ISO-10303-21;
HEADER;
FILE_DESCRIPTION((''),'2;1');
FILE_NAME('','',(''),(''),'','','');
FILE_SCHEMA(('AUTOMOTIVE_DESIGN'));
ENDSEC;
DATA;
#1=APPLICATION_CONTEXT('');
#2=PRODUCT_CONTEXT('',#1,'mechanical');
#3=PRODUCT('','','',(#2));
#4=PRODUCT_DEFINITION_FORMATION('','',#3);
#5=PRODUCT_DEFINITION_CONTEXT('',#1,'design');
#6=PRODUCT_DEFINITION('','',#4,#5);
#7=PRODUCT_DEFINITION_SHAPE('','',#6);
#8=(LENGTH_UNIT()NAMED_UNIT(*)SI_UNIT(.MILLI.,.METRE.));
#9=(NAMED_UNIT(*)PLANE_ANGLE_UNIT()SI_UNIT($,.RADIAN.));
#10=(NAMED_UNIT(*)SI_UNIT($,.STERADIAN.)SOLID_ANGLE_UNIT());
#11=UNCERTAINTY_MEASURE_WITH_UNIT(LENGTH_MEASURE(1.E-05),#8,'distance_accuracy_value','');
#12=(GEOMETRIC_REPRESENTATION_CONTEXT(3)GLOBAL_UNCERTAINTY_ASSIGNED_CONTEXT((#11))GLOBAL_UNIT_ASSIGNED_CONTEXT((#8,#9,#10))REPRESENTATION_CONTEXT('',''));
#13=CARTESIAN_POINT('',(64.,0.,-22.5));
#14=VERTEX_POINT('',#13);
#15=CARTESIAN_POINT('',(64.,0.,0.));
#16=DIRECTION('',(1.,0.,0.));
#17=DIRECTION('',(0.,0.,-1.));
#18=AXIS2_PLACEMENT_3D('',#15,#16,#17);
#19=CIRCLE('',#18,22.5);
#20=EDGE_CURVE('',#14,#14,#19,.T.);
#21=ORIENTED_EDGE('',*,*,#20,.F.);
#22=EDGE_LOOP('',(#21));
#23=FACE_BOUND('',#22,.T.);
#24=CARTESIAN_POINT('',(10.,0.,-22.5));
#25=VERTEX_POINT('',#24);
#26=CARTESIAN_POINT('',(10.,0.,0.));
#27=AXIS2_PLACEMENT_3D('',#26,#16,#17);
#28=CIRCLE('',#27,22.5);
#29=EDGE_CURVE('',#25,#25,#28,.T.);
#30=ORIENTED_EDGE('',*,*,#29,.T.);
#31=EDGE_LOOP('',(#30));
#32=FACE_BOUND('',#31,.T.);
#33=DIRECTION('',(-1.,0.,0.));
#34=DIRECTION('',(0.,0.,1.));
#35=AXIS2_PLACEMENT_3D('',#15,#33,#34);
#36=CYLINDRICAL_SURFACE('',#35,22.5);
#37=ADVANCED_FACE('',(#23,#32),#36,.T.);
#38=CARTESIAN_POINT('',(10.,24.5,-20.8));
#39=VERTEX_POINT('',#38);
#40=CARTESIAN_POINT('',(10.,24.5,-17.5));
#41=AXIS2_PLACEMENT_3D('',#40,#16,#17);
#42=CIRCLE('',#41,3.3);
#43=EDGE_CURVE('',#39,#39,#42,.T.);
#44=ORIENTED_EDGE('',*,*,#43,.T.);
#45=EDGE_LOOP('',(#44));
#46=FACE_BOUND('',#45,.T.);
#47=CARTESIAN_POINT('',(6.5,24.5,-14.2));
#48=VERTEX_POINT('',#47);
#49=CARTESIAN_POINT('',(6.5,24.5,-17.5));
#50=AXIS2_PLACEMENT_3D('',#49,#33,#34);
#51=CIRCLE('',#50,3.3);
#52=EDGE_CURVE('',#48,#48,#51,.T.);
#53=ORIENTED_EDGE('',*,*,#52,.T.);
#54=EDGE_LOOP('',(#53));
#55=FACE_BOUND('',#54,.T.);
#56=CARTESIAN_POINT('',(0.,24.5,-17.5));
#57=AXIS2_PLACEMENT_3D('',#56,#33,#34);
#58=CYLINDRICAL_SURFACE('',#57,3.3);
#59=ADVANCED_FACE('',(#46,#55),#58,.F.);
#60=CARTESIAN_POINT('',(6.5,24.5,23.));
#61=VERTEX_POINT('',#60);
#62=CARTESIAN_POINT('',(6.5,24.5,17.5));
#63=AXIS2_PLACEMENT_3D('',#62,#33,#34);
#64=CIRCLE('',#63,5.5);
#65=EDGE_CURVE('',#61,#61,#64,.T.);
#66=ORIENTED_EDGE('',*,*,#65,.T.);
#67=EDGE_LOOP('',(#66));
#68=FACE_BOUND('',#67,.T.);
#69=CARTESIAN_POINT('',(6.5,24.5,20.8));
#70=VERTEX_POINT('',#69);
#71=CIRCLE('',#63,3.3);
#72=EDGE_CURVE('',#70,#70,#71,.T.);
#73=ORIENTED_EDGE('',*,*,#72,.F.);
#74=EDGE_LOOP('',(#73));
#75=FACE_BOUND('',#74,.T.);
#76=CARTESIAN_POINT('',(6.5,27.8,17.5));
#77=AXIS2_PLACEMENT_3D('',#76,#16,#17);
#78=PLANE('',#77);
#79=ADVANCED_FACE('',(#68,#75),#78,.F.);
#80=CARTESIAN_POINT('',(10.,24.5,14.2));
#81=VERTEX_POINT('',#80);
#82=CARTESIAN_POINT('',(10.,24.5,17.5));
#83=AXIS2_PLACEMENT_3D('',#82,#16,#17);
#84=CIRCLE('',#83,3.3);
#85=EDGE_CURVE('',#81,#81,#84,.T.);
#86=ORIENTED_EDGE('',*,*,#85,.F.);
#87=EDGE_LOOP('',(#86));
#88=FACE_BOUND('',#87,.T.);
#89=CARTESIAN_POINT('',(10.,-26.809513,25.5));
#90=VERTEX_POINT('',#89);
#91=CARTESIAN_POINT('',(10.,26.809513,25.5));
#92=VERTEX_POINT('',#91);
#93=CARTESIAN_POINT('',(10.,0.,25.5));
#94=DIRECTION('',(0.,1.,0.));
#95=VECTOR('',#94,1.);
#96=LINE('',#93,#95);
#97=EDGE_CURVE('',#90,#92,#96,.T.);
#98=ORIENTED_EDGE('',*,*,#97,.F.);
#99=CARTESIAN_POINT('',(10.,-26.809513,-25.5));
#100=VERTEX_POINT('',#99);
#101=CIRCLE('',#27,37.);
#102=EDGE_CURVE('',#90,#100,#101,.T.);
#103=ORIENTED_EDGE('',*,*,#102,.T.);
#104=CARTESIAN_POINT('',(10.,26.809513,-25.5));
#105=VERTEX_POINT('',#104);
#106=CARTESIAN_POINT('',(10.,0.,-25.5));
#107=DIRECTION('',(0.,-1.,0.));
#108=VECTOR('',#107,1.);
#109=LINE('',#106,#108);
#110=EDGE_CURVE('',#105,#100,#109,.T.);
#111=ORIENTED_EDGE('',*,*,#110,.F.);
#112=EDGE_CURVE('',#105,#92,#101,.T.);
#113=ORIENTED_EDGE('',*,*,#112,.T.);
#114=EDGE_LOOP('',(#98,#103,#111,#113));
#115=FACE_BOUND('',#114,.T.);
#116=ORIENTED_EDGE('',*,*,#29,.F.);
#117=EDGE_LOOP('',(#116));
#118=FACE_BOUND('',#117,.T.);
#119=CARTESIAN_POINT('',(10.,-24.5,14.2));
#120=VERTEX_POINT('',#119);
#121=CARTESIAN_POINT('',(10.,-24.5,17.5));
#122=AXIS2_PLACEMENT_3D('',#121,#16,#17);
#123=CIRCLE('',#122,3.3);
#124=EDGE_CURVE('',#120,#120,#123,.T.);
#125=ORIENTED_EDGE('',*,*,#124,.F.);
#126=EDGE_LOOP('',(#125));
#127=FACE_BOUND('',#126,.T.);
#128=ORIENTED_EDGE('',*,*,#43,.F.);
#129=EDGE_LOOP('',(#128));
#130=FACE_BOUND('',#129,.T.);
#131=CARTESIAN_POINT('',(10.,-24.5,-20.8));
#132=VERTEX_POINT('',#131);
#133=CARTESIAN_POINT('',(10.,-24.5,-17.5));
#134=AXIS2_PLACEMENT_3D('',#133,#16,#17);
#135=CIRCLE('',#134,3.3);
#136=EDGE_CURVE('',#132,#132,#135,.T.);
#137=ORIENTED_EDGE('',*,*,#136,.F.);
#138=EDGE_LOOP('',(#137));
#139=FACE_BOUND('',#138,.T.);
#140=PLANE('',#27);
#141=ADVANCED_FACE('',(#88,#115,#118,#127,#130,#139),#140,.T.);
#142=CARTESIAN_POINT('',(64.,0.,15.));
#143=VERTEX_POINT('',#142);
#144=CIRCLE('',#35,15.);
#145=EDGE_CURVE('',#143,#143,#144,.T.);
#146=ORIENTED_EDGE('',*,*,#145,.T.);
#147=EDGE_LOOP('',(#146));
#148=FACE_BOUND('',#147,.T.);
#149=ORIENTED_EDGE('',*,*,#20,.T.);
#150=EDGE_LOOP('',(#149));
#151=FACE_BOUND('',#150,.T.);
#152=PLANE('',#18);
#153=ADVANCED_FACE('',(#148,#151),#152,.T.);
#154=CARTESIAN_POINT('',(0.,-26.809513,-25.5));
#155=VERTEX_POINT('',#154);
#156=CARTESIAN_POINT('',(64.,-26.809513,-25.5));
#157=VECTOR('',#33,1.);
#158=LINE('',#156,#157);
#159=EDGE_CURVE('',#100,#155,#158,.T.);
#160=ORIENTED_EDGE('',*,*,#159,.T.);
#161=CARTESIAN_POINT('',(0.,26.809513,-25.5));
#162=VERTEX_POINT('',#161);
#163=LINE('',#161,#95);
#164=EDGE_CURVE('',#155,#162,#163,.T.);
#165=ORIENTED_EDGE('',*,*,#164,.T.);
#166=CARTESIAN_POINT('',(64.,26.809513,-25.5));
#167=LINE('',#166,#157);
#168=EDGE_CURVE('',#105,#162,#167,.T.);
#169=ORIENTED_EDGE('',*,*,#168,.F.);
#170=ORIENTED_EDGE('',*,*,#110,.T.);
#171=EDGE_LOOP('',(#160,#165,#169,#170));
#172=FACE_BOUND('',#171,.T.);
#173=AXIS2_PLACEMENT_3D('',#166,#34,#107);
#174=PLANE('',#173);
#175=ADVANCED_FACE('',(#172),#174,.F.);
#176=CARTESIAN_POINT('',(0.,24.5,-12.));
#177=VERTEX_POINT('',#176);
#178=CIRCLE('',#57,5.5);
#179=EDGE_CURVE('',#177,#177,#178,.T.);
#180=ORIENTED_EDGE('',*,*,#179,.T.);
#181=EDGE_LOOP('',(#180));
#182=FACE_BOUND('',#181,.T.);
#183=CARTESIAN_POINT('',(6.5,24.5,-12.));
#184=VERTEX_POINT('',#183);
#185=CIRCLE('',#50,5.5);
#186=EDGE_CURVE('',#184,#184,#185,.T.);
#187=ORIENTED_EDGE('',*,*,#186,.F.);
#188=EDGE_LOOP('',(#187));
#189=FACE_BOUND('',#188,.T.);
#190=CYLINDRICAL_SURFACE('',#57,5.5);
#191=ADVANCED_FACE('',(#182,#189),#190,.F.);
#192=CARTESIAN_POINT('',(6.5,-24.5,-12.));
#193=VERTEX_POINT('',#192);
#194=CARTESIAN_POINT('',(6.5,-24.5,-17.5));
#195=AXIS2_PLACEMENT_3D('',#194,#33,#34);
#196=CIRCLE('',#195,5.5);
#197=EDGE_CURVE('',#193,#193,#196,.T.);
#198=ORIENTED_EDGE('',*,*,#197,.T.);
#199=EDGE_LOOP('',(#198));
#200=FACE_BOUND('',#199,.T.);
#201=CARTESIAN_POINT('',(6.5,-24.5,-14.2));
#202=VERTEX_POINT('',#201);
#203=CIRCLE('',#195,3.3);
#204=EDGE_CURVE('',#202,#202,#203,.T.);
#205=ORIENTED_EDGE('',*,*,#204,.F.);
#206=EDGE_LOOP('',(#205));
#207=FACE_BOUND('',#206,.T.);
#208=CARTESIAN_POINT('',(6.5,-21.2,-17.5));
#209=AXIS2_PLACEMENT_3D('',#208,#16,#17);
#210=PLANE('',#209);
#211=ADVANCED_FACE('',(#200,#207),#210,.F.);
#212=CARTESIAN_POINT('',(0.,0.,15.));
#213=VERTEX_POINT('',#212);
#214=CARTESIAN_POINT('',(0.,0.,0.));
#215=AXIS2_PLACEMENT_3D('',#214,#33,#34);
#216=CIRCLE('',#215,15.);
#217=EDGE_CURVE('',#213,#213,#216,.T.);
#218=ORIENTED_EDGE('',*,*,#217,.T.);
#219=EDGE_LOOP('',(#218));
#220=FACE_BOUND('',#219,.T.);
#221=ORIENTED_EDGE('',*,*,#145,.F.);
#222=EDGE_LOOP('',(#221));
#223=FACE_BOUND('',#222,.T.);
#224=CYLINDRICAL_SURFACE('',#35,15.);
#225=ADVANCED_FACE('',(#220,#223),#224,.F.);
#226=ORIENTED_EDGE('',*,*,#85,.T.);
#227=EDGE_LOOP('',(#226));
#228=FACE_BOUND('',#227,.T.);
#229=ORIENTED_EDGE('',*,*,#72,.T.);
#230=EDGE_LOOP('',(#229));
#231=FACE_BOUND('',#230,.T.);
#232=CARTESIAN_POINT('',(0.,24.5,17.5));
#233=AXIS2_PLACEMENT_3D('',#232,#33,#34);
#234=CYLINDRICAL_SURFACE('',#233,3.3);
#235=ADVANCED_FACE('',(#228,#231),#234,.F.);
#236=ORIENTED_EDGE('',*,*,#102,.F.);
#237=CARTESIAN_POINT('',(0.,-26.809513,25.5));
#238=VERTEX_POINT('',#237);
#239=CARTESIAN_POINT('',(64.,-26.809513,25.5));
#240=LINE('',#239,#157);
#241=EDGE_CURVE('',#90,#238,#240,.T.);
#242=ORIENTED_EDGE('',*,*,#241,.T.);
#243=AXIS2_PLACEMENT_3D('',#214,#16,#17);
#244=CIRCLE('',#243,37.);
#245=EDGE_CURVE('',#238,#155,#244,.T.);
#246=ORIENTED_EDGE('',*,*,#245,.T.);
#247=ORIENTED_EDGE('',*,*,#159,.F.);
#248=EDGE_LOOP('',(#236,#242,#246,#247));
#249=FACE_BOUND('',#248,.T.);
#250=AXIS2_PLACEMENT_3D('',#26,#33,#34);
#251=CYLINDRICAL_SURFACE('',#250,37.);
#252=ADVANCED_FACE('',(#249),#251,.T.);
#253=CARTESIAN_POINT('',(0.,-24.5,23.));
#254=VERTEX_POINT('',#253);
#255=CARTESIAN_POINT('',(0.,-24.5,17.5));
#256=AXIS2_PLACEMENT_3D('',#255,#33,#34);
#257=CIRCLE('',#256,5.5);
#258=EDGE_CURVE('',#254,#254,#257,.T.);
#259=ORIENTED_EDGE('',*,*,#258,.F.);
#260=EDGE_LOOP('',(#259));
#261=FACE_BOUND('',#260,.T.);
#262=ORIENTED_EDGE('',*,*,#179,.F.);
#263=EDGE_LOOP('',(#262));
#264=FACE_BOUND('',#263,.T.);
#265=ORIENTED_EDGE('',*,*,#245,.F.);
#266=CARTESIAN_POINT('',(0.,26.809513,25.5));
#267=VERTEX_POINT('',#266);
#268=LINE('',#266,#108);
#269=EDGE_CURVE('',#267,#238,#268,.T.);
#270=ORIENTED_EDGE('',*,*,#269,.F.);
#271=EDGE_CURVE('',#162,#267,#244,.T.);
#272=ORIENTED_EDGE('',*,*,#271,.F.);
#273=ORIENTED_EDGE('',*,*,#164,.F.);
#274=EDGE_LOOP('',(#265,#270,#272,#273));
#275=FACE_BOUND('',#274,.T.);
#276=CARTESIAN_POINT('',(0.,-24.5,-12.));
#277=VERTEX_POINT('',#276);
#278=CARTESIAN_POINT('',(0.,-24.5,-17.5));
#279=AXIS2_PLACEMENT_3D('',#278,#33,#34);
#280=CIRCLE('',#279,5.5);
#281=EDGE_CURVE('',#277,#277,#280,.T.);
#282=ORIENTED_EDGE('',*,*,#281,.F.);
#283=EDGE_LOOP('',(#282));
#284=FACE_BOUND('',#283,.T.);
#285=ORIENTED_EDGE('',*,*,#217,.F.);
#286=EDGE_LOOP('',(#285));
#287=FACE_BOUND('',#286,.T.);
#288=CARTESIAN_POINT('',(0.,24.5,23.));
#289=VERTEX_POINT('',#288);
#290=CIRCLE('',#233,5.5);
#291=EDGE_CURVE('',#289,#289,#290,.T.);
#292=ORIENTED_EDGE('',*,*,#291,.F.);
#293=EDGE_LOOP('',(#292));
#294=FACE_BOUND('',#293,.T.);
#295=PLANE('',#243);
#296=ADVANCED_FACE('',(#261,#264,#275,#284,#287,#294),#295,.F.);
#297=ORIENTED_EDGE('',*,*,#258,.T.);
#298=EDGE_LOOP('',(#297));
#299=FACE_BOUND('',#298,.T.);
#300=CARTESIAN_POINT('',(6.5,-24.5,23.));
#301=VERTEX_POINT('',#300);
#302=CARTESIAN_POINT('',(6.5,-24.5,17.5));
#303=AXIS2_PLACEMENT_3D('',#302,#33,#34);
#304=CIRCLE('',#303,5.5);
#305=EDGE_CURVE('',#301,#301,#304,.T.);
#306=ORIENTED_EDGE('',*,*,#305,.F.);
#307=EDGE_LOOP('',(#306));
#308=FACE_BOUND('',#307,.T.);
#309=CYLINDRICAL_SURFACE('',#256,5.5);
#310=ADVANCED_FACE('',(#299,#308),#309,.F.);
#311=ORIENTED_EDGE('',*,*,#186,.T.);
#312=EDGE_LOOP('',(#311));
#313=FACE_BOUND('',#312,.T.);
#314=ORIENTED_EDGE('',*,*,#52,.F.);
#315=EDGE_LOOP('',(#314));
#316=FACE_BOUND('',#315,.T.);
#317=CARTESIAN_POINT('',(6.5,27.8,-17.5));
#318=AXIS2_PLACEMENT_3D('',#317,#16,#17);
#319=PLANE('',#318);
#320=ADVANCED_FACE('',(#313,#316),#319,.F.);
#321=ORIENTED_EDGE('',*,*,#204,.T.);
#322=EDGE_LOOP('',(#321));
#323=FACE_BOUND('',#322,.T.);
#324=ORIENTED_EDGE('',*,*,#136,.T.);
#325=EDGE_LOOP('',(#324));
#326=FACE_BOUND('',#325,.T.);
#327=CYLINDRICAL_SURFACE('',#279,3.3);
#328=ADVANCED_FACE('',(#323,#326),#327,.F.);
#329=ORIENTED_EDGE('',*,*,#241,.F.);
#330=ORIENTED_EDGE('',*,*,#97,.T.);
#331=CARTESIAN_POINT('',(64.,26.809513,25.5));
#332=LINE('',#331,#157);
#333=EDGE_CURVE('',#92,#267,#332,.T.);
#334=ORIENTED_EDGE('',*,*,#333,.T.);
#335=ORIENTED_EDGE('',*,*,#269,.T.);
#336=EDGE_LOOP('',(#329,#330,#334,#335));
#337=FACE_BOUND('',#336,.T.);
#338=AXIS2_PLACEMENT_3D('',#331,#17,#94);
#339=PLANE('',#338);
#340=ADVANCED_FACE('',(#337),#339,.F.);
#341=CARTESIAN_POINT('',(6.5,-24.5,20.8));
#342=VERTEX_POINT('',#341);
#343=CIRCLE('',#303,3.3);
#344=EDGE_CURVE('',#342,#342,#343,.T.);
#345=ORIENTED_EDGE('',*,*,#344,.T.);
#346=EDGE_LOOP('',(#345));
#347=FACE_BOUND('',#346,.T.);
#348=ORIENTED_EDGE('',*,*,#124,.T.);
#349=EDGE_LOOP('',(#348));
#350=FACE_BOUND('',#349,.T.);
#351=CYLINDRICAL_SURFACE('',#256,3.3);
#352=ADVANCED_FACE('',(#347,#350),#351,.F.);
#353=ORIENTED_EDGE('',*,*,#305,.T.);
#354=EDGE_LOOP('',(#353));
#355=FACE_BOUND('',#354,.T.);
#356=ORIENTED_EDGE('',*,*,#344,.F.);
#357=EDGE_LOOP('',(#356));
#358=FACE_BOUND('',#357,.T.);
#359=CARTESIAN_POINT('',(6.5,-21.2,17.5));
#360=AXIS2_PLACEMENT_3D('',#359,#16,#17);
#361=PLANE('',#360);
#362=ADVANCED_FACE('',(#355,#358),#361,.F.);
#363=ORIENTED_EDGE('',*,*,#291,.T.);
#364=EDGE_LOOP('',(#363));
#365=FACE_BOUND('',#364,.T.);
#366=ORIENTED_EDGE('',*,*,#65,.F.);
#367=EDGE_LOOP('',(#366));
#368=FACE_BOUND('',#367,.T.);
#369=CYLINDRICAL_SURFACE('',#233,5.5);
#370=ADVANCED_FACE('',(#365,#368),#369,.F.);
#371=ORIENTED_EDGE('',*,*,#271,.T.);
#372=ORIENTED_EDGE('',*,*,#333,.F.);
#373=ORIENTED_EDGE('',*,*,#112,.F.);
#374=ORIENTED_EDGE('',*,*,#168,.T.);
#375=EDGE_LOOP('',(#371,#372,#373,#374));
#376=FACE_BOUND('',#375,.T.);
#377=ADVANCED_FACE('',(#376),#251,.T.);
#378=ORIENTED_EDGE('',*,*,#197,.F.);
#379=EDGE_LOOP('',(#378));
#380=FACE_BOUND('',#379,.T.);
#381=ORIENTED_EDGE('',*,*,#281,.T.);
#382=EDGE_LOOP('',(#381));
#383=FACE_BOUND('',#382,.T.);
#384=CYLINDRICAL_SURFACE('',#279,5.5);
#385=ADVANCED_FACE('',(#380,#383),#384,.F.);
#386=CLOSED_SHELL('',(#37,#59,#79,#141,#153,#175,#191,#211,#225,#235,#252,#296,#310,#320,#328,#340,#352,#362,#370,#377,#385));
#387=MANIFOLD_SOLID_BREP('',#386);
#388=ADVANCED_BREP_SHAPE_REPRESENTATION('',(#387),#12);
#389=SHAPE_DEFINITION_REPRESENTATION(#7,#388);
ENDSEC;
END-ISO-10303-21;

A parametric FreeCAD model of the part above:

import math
import FreeCAD as App
import Part
import Sketcher

doc = App.newDocument("Part")
body = doc.addObject("PartDesign::Body", "Body")

# Sketch on YZ plane
sketch1 = body.newObject("Sketcher::SketchObject", "Sketch")
sketch1.AttachmentSupport = (doc.getObject("YZ_Plane"), [""])
sketch1.MapMode = "FlatFace"
sketch1.addGeometry(Part.Circle(App.Vector(0, 0, 0), App.Vector(0, 0, 1), 37), False)
sketch1.addConstraint(Sketcher.Constraint("Coincident", 0, 3, -1, 1))
sketch1.addConstraint(Sketcher.Constraint("Diameter", 0, 74.0))
pad1 = body.newObject("PartDesign::Pad", "Pad")
pad1.Profile = sketch1
pad1.Length = 10

# Sketch on YZ plane
sketch2 = body.newObject("Sketcher::SketchObject", "Sketch001")
sketch2.AttachmentSupport = (doc.getObject("YZ_Plane"), [""])
sketch2.MapMode = "FlatFace"
sketch2.AttachmentOffset = App.Placement(App.Vector(0, 0, 10), App.Rotation())
sketch2.addGeometry(Part.Circle(App.Vector(0, 0, 0), App.Vector(0, 0, 1), 22), False)
sketch2.addConstraint(Sketcher.Constraint("Coincident", 0, 3, -1, 1))
sketch2.addConstraint(Sketcher.Constraint("Diameter", 0, 45.0))
pad2 = body.newObject("PartDesign::Pad", "Pad001")
pad2.Profile = sketch2
pad2.Length = 54

# Sketch on YZ plane
sketch3 = body.newObject("Sketcher::SketchObject", "Sketch002")
sketch3.AttachmentSupport = (doc.getObject("YZ_Plane"), [""])
sketch3.MapMode = "FlatFace"
sketch3.addGeometry(Part.Circle(App.Vector(0, 0, 0), App.Vector(0, 0, 1), 15), False)
sketch3.addConstraint(Sketcher.Constraint("Coincident", 0, 3, -1, 1))
sketch3.addConstraint(Sketcher.Constraint("Diameter", 0, 30.0))
pocket1 = body.newObject("PartDesign::Pocket", "Pocket")
pocket1.Profile = sketch3
pocket1.Type = "ThroughAll"
pocket1.Reversed = True

# Sketch on YZ plane
sketch4 = body.newObject("Sketcher::SketchObject", "Sketch003")
sketch4.AttachmentSupport = (doc.getObject("YZ_Plane"), [""])
sketch4.MapMode = "FlatFace"
sketch4.addGeometry(Part.LineSegment(App.Vector(-27, -26, 0), App.Vector(27, -26, 0)), False)
sketch4.addGeometry(Part.ArcOfCircle(Part.Circle(App.Vector(0, 0, 0), App.Vector(0, 0, 1), 37), math.radians(-136), math.radians(-44)), False)
sketch4.addGeometry(Part.LineSegment(App.Vector(27, 26, 0), App.Vector(-27, 26, 0)), False)
sketch4.addGeometry(Part.ArcOfCircle(Part.Circle(App.Vector(0, 0, 0), App.Vector(0, 0, 1), 37), math.radians(44), math.radians(136)), False)
sketch4.addConstraint(Sketcher.Constraint("Coincident", 0, 1, 1, 1))
sketch4.addConstraint(Sketcher.Constraint("Coincident", 1, 2, 0, 2))
sketch4.addConstraint(Sketcher.Constraint("Coincident", 2, 1, 3, 1))
sketch4.addConstraint(Sketcher.Constraint("Coincident", 3, 2, 2, 2))
sketch4.addConstraint(Sketcher.Constraint("Horizontal", 0))
sketch4.addConstraint(Sketcher.Constraint("Horizontal", 2))
sketch4.addConstraint(Sketcher.Constraint("Coincident", 1, 3, -1, 1))
sketch4.addConstraint(Sketcher.Constraint("Coincident", 3, 3, -1, 1))
sketch4.addConstraint(Sketcher.Constraint("Equal", 1, 3))
sketch4.addConstraint(Sketcher.Constraint("Vertical", 1, 2, 2, 1))
sketch4.addConstraint(Sketcher.Constraint("Radius", 1, 37.0))
sketch4.addConstraint(Sketcher.Constraint("DistanceY", 1, 2, 2, 1, 51.0))
pocket2 = body.newObject("PartDesign::Pocket", "Pocket001")
pocket2.Profile = sketch4
pocket2.Type = "ThroughAll"
pocket2.Reversed = True

# Sketch on YZ plane
sketch5 = body.newObject("Sketcher::SketchObject", "Sketch004")
sketch5.AttachmentSupport = (doc.getObject("YZ_Plane"), [""])
sketch5.MapMode = "FlatFace"
sketch5.addGeometry(Part.Circle(App.Vector(24.5, -17.5, 0), App.Vector(0, 0, 1), 3.3), False)
sketch5.addGeometry(Part.Circle(App.Vector(24.5, 17.5, 0), App.Vector(0, 0, 1), 3.3), False)
sketch5.addGeometry(Part.Circle(App.Vector(-24.5, 17.5, 0), App.Vector(0, 0, 1), 3.3), False)
sketch5.addGeometry(Part.Circle(App.Vector(-24.5, -17.5, 0), App.Vector(0, 0, 1), 3.3), False)
sketch5.addConstraint(Sketcher.Constraint("Equal", 0, 1))
sketch5.addConstraint(Sketcher.Constraint("Equal", 1, 2))
sketch5.addConstraint(Sketcher.Constraint("Equal", 2, 3))
sketch5.addConstraint(Sketcher.Constraint("Symmetric", 0, 3, 2, 3, -1, 1))
sketch5.addConstraint(Sketcher.Constraint("Symmetric", 1, 3, 3, 3, -1, 1))
sketch5.addConstraint(Sketcher.Constraint("Symmetric", 1, 3, 2, 3, -2))
sketch5.addConstraint(Sketcher.Constraint("Diameter", 0, 6.6))
sketch5.addConstraint(Sketcher.Constraint("DistanceY", 0, 3, 1, 3, 35.0))
sketch5.addConstraint(Sketcher.Constraint("DistanceX", 2, 3, 1, 3, 49.0))
doc.recompute()
hole = body.newObject("PartDesign::Hole", "Hole")
hole.Profile = sketch5
hole.ThreadType = "None"
hole.Diameter = 6.6
hole.DepthType = "ThroughAll"
hole.HoleCutType = "Counterbore"
hole.HoleCutDiameter = 11
hole.HoleCutDepth = 6.5
hole.Reversed = True

doc.recompute()
